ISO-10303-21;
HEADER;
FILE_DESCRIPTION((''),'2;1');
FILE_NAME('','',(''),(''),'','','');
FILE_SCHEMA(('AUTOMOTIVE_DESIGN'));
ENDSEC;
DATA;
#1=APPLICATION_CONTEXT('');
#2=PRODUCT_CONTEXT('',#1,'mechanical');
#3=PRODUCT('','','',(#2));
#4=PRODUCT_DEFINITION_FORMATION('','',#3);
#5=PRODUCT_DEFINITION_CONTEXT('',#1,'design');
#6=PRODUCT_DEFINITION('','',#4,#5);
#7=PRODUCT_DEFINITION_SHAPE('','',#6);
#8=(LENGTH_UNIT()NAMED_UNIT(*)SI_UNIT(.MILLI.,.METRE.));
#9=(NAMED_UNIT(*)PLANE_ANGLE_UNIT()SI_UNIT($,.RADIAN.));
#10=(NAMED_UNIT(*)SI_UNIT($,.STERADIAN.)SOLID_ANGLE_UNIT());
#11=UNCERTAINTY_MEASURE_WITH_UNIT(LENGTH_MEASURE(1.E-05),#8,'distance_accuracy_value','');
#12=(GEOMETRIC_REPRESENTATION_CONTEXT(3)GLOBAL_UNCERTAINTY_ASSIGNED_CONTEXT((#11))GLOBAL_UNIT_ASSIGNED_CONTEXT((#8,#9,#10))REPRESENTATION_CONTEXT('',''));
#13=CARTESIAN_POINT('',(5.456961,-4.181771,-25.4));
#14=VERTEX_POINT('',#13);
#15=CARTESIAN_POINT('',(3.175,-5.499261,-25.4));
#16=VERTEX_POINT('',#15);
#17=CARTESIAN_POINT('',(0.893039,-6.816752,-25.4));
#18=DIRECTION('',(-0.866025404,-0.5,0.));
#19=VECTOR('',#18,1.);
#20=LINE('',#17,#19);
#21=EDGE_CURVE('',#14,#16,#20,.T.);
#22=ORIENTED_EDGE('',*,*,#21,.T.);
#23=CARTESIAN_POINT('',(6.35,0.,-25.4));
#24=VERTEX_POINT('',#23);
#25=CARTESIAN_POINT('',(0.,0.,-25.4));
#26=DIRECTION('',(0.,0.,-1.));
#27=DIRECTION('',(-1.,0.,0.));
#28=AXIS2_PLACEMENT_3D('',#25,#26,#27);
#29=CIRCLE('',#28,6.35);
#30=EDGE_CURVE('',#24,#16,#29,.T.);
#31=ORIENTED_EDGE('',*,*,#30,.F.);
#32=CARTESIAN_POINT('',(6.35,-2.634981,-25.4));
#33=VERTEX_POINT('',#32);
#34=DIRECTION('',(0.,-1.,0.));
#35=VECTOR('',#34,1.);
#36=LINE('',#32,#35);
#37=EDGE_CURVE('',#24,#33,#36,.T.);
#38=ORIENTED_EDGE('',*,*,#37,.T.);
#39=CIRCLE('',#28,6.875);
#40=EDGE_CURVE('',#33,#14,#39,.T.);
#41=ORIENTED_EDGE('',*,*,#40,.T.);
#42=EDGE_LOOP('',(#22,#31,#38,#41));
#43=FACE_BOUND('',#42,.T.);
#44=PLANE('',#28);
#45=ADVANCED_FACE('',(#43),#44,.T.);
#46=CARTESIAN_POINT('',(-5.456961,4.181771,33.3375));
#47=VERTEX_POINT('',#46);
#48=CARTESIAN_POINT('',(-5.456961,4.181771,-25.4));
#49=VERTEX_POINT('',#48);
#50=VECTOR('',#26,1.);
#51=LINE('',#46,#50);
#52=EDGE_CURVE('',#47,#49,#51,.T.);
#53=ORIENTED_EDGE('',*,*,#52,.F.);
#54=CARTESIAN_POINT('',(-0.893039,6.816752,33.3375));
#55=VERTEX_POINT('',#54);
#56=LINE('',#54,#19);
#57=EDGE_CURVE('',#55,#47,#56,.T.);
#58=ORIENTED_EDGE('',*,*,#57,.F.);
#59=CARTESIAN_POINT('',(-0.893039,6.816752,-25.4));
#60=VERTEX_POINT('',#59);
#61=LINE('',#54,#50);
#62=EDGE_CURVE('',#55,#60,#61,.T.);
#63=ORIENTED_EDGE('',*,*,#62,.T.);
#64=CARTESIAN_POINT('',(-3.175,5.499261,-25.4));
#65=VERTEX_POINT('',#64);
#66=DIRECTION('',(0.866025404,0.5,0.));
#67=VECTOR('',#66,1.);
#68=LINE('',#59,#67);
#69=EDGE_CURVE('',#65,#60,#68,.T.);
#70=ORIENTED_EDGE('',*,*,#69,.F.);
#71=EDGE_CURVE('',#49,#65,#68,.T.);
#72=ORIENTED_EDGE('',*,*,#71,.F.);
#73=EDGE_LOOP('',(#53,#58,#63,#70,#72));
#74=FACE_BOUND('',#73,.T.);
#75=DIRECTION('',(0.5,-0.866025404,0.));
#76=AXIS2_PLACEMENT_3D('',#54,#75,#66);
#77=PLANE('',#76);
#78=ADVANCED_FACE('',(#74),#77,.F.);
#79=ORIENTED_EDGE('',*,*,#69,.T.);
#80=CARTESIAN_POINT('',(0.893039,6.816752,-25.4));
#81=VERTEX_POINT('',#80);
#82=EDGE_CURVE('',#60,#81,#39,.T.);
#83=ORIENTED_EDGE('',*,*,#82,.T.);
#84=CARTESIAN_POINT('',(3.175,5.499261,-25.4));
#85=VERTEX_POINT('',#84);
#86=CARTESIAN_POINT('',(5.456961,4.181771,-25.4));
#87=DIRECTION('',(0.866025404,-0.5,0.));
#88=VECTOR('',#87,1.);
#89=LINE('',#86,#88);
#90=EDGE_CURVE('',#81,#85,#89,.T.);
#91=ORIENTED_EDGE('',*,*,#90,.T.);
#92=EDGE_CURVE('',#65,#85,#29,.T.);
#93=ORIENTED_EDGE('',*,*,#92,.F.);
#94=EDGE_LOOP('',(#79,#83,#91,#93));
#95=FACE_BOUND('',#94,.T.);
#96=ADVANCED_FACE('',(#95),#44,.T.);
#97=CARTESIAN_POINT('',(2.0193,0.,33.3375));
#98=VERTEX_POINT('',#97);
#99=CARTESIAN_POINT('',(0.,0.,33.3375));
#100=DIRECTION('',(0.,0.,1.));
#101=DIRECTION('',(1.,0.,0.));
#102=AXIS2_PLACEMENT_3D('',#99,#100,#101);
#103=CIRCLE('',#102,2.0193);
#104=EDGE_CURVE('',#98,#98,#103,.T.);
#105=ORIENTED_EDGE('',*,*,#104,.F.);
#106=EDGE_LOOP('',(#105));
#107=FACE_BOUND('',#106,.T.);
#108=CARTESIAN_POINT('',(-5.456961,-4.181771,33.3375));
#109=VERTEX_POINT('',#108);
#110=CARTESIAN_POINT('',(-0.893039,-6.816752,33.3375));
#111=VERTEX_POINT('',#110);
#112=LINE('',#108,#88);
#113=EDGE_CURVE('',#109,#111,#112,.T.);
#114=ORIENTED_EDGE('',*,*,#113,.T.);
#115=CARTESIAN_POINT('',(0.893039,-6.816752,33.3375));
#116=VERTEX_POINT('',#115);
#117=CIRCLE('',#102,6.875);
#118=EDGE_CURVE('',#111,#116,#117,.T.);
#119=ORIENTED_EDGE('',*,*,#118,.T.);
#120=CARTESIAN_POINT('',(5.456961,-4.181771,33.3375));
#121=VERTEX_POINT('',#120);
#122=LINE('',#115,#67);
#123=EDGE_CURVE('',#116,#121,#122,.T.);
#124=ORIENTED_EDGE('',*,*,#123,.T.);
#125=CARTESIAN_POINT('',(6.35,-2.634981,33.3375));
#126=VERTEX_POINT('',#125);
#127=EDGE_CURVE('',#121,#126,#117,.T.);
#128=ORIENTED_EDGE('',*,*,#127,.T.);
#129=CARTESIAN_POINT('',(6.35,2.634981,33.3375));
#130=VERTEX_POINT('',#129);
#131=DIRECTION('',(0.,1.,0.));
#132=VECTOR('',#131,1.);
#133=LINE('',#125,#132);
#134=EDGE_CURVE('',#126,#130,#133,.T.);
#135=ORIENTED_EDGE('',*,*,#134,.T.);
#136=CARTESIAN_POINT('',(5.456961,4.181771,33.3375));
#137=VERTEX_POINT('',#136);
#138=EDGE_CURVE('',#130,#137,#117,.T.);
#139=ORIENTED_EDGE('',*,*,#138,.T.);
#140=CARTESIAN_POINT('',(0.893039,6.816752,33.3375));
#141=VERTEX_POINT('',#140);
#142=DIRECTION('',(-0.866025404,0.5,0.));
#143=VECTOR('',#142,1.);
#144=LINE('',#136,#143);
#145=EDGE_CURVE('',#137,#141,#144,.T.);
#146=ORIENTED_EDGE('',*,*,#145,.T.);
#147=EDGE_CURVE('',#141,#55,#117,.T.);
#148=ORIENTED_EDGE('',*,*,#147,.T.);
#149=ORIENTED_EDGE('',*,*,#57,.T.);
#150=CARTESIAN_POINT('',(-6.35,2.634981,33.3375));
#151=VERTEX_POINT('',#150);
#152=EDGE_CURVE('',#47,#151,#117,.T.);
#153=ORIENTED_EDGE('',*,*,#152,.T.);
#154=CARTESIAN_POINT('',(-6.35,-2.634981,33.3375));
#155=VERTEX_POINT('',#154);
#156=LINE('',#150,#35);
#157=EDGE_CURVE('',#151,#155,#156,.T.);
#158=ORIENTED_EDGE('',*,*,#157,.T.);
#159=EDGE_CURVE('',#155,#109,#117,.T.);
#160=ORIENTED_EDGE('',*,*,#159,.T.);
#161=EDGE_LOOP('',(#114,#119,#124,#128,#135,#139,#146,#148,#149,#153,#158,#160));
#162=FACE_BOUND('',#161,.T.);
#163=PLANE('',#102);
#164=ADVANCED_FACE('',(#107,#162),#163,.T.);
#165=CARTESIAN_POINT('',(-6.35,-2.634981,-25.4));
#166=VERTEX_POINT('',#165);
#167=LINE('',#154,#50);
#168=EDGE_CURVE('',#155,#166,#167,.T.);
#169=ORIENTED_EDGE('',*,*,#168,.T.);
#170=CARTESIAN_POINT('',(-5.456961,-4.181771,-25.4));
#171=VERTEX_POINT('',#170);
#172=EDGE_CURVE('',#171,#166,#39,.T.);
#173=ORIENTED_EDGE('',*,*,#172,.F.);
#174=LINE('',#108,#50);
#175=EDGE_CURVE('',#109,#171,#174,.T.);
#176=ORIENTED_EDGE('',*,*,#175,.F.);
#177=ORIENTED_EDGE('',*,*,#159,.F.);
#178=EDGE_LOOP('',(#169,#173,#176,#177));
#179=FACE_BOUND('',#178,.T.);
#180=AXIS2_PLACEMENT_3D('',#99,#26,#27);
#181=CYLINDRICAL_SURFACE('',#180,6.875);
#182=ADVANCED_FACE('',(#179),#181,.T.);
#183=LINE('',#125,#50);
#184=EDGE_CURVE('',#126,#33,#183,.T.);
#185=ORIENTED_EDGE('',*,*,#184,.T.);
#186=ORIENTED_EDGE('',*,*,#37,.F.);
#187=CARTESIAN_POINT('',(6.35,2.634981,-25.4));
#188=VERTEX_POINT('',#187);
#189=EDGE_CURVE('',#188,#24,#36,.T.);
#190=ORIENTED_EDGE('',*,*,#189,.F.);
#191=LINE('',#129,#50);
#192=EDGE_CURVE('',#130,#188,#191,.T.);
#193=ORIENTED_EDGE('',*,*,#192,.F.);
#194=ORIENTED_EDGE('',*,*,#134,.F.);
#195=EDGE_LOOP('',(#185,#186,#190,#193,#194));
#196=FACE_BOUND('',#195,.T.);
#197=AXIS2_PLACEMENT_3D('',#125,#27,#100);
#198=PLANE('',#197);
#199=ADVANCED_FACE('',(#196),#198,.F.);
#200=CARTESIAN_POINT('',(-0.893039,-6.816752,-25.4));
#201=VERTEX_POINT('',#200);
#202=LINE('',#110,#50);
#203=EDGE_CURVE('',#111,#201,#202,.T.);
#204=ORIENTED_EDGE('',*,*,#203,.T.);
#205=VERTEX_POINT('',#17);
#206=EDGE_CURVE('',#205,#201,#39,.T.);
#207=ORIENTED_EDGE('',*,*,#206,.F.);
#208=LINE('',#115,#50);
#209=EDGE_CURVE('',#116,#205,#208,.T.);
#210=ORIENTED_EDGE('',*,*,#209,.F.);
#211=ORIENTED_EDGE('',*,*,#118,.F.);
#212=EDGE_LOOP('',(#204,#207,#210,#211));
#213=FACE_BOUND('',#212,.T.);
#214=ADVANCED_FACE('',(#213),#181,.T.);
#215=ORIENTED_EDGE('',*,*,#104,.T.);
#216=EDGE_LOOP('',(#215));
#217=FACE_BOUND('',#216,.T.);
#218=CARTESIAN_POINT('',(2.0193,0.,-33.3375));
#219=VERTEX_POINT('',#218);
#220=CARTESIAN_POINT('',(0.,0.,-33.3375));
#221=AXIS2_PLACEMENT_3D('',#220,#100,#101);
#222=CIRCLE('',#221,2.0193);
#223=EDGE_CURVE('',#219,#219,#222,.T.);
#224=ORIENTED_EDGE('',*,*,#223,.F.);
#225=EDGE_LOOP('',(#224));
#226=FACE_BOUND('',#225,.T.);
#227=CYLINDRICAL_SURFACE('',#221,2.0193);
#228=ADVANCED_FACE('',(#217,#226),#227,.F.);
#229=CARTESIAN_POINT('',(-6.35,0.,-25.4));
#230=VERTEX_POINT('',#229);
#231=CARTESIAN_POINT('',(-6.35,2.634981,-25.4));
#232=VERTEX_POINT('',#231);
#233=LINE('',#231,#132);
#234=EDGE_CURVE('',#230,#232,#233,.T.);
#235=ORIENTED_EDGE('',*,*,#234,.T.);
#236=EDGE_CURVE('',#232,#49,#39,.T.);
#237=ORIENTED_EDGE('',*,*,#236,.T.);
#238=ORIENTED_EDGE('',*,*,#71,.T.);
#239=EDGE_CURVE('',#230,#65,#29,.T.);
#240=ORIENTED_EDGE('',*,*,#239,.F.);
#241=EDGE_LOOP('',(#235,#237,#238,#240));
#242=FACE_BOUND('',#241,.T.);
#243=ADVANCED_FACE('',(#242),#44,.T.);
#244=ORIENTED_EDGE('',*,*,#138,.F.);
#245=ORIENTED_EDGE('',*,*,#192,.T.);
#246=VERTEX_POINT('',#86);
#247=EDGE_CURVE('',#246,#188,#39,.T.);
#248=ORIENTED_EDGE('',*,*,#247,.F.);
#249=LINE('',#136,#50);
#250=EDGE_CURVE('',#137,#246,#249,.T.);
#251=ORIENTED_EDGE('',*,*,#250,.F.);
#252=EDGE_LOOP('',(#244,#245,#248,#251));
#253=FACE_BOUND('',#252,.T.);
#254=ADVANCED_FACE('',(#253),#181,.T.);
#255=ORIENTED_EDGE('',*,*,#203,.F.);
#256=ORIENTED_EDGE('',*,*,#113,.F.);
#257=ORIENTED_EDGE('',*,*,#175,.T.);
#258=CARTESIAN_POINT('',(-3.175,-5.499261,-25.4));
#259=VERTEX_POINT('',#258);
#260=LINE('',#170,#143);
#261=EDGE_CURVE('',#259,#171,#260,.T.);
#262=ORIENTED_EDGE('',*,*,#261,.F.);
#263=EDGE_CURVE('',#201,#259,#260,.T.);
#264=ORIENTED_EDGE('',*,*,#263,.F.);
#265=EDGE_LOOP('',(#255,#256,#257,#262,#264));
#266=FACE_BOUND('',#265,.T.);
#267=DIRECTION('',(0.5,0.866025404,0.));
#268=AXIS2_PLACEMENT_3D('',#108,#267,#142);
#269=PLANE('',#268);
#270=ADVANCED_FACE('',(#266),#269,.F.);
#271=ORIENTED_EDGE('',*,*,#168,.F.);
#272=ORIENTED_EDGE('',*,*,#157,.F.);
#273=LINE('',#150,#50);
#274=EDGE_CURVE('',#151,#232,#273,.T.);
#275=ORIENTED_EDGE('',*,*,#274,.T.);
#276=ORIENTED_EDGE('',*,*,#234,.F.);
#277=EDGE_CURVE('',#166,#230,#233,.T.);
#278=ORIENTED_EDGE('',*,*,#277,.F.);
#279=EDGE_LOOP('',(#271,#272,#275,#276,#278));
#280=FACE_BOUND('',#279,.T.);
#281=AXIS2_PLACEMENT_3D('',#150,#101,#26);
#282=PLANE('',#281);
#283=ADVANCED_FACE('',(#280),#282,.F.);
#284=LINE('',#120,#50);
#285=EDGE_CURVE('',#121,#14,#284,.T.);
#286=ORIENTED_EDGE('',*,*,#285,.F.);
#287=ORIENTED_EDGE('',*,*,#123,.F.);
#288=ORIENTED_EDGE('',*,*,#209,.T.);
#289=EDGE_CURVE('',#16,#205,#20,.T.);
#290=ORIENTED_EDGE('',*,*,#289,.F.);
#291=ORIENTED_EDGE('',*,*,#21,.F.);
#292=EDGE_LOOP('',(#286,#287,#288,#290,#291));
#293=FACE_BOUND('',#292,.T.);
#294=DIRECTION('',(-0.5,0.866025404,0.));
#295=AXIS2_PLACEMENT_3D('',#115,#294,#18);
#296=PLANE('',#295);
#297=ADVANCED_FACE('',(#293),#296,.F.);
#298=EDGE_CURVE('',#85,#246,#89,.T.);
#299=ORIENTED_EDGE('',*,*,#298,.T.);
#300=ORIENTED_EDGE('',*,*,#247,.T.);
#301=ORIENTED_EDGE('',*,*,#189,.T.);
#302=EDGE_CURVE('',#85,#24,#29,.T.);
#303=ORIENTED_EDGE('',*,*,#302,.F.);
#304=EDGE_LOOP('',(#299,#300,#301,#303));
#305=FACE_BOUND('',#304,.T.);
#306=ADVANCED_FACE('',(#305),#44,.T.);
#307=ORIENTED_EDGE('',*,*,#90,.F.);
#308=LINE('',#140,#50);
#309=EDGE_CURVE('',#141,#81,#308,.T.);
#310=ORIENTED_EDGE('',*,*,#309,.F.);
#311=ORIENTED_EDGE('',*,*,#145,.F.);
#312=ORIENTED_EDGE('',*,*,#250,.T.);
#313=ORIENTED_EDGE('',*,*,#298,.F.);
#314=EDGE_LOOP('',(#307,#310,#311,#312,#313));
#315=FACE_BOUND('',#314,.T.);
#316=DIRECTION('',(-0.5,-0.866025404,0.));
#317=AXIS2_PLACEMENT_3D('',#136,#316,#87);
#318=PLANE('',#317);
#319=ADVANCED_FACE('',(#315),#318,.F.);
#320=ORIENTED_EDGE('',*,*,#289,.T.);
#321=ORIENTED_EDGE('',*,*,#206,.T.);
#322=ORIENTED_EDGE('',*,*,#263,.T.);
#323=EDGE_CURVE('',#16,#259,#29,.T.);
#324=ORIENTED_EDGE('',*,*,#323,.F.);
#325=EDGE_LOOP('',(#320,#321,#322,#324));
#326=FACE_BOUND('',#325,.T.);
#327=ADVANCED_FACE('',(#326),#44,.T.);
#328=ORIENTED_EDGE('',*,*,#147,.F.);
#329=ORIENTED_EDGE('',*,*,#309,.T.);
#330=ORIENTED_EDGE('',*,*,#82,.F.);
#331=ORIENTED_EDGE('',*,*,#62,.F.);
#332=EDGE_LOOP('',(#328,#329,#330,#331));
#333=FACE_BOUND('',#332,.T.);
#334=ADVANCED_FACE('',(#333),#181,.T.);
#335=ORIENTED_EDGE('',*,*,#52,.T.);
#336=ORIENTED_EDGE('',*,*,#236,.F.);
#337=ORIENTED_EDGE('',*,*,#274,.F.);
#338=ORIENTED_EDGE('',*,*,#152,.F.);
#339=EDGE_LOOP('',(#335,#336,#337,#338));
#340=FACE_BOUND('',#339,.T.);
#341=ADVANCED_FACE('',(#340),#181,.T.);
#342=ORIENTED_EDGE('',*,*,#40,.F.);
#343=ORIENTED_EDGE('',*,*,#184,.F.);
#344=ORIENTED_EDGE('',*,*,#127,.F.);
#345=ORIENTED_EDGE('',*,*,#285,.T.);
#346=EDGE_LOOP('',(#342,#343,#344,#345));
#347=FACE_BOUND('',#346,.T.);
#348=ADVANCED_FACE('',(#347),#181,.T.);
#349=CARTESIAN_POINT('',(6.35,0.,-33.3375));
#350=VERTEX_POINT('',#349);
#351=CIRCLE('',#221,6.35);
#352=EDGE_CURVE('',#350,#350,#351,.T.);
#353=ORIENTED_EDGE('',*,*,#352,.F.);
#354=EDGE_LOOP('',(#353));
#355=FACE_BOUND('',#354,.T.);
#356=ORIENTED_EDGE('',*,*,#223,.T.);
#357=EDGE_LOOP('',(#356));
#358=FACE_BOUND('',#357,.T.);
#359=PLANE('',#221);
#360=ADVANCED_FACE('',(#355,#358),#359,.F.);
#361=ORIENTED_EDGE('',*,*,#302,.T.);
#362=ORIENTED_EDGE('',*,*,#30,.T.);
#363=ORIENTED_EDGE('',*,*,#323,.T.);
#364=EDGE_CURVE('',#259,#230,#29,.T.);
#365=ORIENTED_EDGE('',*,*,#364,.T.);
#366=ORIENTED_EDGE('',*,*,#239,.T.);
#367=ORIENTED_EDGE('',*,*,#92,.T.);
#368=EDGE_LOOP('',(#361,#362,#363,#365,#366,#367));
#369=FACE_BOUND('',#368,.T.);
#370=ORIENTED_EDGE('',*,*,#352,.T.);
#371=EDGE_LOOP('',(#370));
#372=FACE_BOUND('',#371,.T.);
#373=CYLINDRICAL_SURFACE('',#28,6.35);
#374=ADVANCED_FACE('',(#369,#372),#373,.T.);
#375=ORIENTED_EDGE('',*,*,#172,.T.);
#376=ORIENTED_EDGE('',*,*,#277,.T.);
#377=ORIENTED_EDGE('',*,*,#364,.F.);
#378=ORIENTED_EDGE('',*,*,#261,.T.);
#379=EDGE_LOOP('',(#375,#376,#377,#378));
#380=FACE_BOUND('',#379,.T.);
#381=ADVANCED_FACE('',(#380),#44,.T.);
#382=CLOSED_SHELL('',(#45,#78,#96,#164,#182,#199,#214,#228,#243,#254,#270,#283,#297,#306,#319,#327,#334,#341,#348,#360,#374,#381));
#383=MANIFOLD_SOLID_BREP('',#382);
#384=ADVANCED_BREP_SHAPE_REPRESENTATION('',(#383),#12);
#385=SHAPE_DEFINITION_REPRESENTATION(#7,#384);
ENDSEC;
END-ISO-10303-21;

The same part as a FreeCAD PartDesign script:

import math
import FreeCAD as App
import Part
import Sketcher
Q = App.Units.Quantity

doc = App.newDocument("Part")
params = doc.addObject("Spreadsheet::Sheet", "Params")
for row, (alias, value) in enumerate([
    ("pad1_length", "2.625 in"),
    ("sketch2_diameter", "0.159 in"),
    ("sketch3_diameter", "0.5 in"),
    ("pocket2_length", "0.3125 in"),
    ("sketch4_diameter", "0.159 in"),
    ("hole_diameter", "0.159 in"),
    ("hole_depth", "0.4736 in"),
    ("sketch5_diameter", "0.159 in"),
    ("hole2_diameter", "0.159 in"),
    ("hole2_depth", "0.4736 in"),
], start=1):
    params.set(f"A{row}", alias)
    params.set(f"B{row}", "=" + value)
    params.setAlias(f"B{row}", alias)

body = doc.addObject("PartDesign::Body", "Body")

# Sketch on XY plane
sketch1 = body.newObject("Sketcher::SketchObject", "Sketch")
sketch1.AttachmentSupport = (doc.getObject("XY_Plane"), [""])
sketch1.MapMode = "FlatFace"
sketch1.addGeometry(Part.LineSegment(App.Vector(-0.9, 6.8, 0), App.Vector(-5.5, 4.2, 0)), False)
sketch1.addGeometry(Part.ArcOfCircle(Part.Circle(App.Vector(0, 0, 0), App.Vector(0, 0, 1), 6.9), math.radians(142.54), math.radians(157.46)), False)
sketch1.addGeometry(Part.LineSegment(App.Vector(-6.3, 2.6, 0), App.Vector(-6.3, -2.6, 0)), False)
sketch1.addGeometry(Part.ArcOfCircle(Part.Circle(App.Vector(0, 0, 0), App.Vector(0, 0, 1), 6.9), math.radians(-157.46), math.radians(-142.54)), False)
sketch1.addGeometry(Part.LineSegment(App.Vector(-5.5, -4.2, 0), App.Vector(-0.9, -6.8, 0)), False)
sketch1.addGeometry(Part.ArcOfCircle(Part.Circle(App.Vector(0, 0, 0), App.Vector(0, 0, 1), 6.9), math.radians(-97.46), math.radians(-82.54)), False)
sketch1.addGeometry(Part.LineSegment(App.Vector(0.9, -6.8, 0), App.Vector(5.5, -4.2, 0)), False)
sketch1.addGeometry(Part.ArcOfCircle(Part.Circle(App.Vector(0, 0, 0), App.Vector(0, 0, 1), 6.9), math.radians(-37.46), math.radians(-22.54)), False)
sketch1.addGeometry(Part.LineSegment(App.Vector(6.3, -2.6, 0), App.Vector(6.3, 2.6, 0)), False)
sketch1.addGeometry(Part.ArcOfCircle(Part.Circle(App.Vector(0, 0, 0), App.Vector(0, 0, 1), 6.9), math.radians(22.54), math.radians(37.46)), False)
sketch1.addGeometry(Part.LineSegment(App.Vector(5.5, 4.2, 0), App.Vector(0.9, 6.8, 0)), False)
sketch1.addGeometry(Part.ArcOfCircle(Part.Circle(App.Vector(0, 0, 0), App.Vector(0, 0, 1), 6.9), math.radians(82.54), math.radians(97.46)), False)
sketch1.addConstraint(Sketcher.Constraint("Coincident", 0, 2, 1, 1))
sketch1.addConstraint(Sketcher.Constraint("Coincident", 1, 2, 2, 1))
sketch1.addConstraint(Sketcher.Constraint("Coincident", 2, 2, 3, 1))
sketch1.addConstraint(Sketcher.Constraint("Coincident", 3, 2, 4, 1))
sketch1.addConstraint(Sketcher.Constraint("Coincident", 4, 2, 5, 1))
sketch1.addConstraint(Sketcher.Constraint("Coincident", 5, 2, 6, 1))
sketch1.addConstraint(Sketcher.Constraint("Coincident", 6, 2, 7, 1))
sketch1.addConstraint(Sketcher.Constraint("Coincident", 7, 2, 8, 1))
sketch1.addConstraint(Sketcher.Constraint("Coincident", 8, 2, 9, 1))
sketch1.addConstraint(Sketcher.Constraint("Coincident", 9, 2, 10, 1))
sketch1.addConstraint(Sketcher.Constraint("Coincident", 10, 2, 11, 1))
sketch1.addConstraint(Sketcher.Constraint("Coincident", 11, 2, 0, 1))
sketch1.addConstraint(Sketcher.Constraint("Vertical", 2))
sketch1.addConstraint(Sketcher.Constraint("Vertical", 8))
sketch1.addConstraint(Sketcher.Constraint("Coincident", 1, 3, -1, 1))
sketch1.addConstraint(Sketcher.Constraint("Coincident", 3, 3, -1, 1))
sketch1.addConstraint(Sketcher.Constraint("Coincident", 5, 3, -1, 1))
sketch1.addConstraint(Sketcher.Constraint("Coincident", 7, 3, -1, 1))
sketch1.addConstraint(Sketcher.Constraint("Coincident", 9, 3, -1, 1))
sketch1.addConstraint(Sketcher.Constraint("Coincident", 11, 3, -1, 1))
sketch1.addConstraint(Sketcher.Constraint("Equal", 1, 3))
sketch1.addConstraint(Sketcher.Constraint("Equal", 3, 5))
sketch1.addConstraint(Sketcher.Constraint("Equal", 5, 7))
sketch1.addConstraint(Sketcher.Constraint("Equal", 7, 9))
sketch1.addConstraint(Sketcher.Constraint("Equal", 9, 11))
sketch1.addConstraint(Sketcher.Constraint("Parallel", 0, 6))
sketch1.addConstraint(Sketcher.Constraint("Parallel", 4, 10))
sketch1.addConstraint(Sketcher.Constraint("Horizontal", 4, 2, 5, 2))
sketch1.addConstraint(Sketcher.Constraint("Horizontal", 3, 2, 6, 2))
sketch1.addConstraint(Sketcher.Constraint("Horizontal", 2, 2, 7, 2))
sketch1.addConstraint(Sketcher.Constraint("Horizontal", 0, 2, 9, 2))
sketch1.addConstraint(Sketcher.Constraint("Vertical", 0, 2, 3, 2))
sketch1.addConstraint(Sketcher.Constraint("Angle", 0, Q("-150 deg")))
sketch1.addConstraint(Sketcher.Constraint("DistanceX", 1, 2, -1, 1, Q("0.25 in")))
sketch1.addConstraint(Sketcher.Constraint("Radius", 1, 6.875))
sketch1.addConstraint(Sketcher.Constraint("DistanceX", 3, 2, 5, 2, Q("0.25 in")))
pad1 = body.newObject("PartDesign::Pad", "Pad")
pad1.Profile = sketch1
pad1.setExpression("Length", "Params.pad1_length")
pad1.Midplane = True

# Sketch on XY plane
sketch2 = body.newObject("Sketcher::SketchObject", "Sketch001")
sketch2.AttachmentSupport = (doc.getObject("XY_Plane"), [""])
sketch2.MapMode = "FlatFace"
sketch2.AttachmentOffset = App.Placement(App.Vector(0, 0, 1.3125 * 25.4), App.Rotation())
sketch2.addGeometry(Part.Circle(App.Vector(0, 0, 0), App.Vector(0, 0, 1), 2), False)
sketch2.addConstraint(Sketcher.Constraint("Coincident", 0, 3, -1, 1))
sketch2.addConstraint(Sketcher.Constraint("Diameter", 0, Q("0.159 in")))
sketch2.setExpression("Constraints[1]", "Params.sketch2_diameter")
pocket1 = body.newObject("PartDesign::Pocket", "Pocket")
pocket1.Profile = sketch2
pocket1.Type = "ThroughAll"

# Sketch on XY plane
sketch3 = body.newObject("Sketcher::SketchObject", "Sketch002")
sketch3.AttachmentSupport = (doc.getObject("XY_Plane"), [""])
sketch3.MapMode = "FlatFace"
sketch3.AttachmentOffset = App.Placement(App.Vector(0, 0, -1 * 25.4), App.Rotation())
sketch3.addGeometry(Part.Circle(App.Vector(0, 0, 0), App.Vector(0, 0, 1), 7), False)
sketch3.addGeometry(Part.Circle(App.Vector(0, 0, 0), App.Vector(0, 0, 1), 6), False)
sketch3.addConstraint(Sketcher.Constraint("Coincident", 0, 3, -1, 1))
sketch3.addConstraint(Sketcher.Constraint("Coincident", 1, 3, -1, 1))
sketch3.addConstraint(Sketcher.Constraint("Diameter", 1, Q("0.5 in")))
sketch3.addConstraint(Sketcher.Constraint("Diameter", 0, 13.75))
sketch3.setExpression("Constraints[2]", "Params.sketch3_diameter")
pocket2 = body.newObject("PartDesign::Pocket", "Pocket001")
pocket2.Profile = sketch3
pocket2.setExpression("Length", "Params.pocket2_length")

# Sketch on XY plane
sketch4 = body.newObject("Sketcher::SketchObject", "Sketch003")
sketch4.AttachmentSupport = (doc.getObject("XY_Plane"), [""])
sketch4.MapMode = "FlatFace"
sketch4.AttachmentOffset = App.Placement(App.Vector(0, 0, -1.3125 * 25.4), App.Rotation())
sketch4.addGeometry(Part.Circle(App.Vector(0, 0, 0), App.Vector(0, 0, 1), 2), False)
sketch4.addConstraint(Sketcher.Constraint("Coincident", 0, 3, -1, 1))
sketch4.addConstraint(Sketcher.Constraint("Diameter", 0, Q("0.159 in")))
sketch4.setExpression("Constraints[1]", "Params.sketch4_diameter")
doc.recompute()
hole = body.newObject("PartDesign::Hole", "Hole")
hole.Profile = sketch4
hole.ThreadType = "None"
hole.setExpression("Diameter", "Params.hole_diameter")
hole.DepthType = "Dimension"
hole.setExpression("Depth", "Params.hole_depth")
hole.DrillPoint = "Angled"
hole.DrillPointAngle = 118
hole.Reversed = True

# Sketch on XY plane
sketch5 = body.newObject("Sketcher::SketchObject", "Sketch004")
sketch5.AttachmentSupport = (doc.getObject("XY_Plane"), [""])
sketch5.MapMode = "FlatFace"
sketch5.AttachmentOffset = App.Placement(App.Vector(0, 0, 1.3125 * 25.4), App.Rotation())
sketch5.addGeometry(Part.Circle(App.Vector(0, 0, 0), App.Vector(0, 0, 1), 2), False)
sketch5.addConstraint(Sketcher.Constraint("Coincident", 0, 3, -1, 1))
sketch5.addConstraint(Sketcher.Constraint("Diameter", 0, Q("0.159 in")))
sketch5.setExpression("Constraints[1]", "Params.sketch5_diameter")
doc.recompute()
hole2 = body.newObject("PartDesign::Hole", "Hole001")
hole2.Profile = sketch5
hole2.ThreadType = "None"
hole2.setExpression("Diameter", "Params.hole2_diameter")
hole2.DepthType = "Dimension"
hole2.setExpression("Depth", "Params.hole2_depth")
hole2.DrillPoint = "Angled"
hole2.DrillPointAngle = 118
hole2.Reversed = True

doc.recompute()
